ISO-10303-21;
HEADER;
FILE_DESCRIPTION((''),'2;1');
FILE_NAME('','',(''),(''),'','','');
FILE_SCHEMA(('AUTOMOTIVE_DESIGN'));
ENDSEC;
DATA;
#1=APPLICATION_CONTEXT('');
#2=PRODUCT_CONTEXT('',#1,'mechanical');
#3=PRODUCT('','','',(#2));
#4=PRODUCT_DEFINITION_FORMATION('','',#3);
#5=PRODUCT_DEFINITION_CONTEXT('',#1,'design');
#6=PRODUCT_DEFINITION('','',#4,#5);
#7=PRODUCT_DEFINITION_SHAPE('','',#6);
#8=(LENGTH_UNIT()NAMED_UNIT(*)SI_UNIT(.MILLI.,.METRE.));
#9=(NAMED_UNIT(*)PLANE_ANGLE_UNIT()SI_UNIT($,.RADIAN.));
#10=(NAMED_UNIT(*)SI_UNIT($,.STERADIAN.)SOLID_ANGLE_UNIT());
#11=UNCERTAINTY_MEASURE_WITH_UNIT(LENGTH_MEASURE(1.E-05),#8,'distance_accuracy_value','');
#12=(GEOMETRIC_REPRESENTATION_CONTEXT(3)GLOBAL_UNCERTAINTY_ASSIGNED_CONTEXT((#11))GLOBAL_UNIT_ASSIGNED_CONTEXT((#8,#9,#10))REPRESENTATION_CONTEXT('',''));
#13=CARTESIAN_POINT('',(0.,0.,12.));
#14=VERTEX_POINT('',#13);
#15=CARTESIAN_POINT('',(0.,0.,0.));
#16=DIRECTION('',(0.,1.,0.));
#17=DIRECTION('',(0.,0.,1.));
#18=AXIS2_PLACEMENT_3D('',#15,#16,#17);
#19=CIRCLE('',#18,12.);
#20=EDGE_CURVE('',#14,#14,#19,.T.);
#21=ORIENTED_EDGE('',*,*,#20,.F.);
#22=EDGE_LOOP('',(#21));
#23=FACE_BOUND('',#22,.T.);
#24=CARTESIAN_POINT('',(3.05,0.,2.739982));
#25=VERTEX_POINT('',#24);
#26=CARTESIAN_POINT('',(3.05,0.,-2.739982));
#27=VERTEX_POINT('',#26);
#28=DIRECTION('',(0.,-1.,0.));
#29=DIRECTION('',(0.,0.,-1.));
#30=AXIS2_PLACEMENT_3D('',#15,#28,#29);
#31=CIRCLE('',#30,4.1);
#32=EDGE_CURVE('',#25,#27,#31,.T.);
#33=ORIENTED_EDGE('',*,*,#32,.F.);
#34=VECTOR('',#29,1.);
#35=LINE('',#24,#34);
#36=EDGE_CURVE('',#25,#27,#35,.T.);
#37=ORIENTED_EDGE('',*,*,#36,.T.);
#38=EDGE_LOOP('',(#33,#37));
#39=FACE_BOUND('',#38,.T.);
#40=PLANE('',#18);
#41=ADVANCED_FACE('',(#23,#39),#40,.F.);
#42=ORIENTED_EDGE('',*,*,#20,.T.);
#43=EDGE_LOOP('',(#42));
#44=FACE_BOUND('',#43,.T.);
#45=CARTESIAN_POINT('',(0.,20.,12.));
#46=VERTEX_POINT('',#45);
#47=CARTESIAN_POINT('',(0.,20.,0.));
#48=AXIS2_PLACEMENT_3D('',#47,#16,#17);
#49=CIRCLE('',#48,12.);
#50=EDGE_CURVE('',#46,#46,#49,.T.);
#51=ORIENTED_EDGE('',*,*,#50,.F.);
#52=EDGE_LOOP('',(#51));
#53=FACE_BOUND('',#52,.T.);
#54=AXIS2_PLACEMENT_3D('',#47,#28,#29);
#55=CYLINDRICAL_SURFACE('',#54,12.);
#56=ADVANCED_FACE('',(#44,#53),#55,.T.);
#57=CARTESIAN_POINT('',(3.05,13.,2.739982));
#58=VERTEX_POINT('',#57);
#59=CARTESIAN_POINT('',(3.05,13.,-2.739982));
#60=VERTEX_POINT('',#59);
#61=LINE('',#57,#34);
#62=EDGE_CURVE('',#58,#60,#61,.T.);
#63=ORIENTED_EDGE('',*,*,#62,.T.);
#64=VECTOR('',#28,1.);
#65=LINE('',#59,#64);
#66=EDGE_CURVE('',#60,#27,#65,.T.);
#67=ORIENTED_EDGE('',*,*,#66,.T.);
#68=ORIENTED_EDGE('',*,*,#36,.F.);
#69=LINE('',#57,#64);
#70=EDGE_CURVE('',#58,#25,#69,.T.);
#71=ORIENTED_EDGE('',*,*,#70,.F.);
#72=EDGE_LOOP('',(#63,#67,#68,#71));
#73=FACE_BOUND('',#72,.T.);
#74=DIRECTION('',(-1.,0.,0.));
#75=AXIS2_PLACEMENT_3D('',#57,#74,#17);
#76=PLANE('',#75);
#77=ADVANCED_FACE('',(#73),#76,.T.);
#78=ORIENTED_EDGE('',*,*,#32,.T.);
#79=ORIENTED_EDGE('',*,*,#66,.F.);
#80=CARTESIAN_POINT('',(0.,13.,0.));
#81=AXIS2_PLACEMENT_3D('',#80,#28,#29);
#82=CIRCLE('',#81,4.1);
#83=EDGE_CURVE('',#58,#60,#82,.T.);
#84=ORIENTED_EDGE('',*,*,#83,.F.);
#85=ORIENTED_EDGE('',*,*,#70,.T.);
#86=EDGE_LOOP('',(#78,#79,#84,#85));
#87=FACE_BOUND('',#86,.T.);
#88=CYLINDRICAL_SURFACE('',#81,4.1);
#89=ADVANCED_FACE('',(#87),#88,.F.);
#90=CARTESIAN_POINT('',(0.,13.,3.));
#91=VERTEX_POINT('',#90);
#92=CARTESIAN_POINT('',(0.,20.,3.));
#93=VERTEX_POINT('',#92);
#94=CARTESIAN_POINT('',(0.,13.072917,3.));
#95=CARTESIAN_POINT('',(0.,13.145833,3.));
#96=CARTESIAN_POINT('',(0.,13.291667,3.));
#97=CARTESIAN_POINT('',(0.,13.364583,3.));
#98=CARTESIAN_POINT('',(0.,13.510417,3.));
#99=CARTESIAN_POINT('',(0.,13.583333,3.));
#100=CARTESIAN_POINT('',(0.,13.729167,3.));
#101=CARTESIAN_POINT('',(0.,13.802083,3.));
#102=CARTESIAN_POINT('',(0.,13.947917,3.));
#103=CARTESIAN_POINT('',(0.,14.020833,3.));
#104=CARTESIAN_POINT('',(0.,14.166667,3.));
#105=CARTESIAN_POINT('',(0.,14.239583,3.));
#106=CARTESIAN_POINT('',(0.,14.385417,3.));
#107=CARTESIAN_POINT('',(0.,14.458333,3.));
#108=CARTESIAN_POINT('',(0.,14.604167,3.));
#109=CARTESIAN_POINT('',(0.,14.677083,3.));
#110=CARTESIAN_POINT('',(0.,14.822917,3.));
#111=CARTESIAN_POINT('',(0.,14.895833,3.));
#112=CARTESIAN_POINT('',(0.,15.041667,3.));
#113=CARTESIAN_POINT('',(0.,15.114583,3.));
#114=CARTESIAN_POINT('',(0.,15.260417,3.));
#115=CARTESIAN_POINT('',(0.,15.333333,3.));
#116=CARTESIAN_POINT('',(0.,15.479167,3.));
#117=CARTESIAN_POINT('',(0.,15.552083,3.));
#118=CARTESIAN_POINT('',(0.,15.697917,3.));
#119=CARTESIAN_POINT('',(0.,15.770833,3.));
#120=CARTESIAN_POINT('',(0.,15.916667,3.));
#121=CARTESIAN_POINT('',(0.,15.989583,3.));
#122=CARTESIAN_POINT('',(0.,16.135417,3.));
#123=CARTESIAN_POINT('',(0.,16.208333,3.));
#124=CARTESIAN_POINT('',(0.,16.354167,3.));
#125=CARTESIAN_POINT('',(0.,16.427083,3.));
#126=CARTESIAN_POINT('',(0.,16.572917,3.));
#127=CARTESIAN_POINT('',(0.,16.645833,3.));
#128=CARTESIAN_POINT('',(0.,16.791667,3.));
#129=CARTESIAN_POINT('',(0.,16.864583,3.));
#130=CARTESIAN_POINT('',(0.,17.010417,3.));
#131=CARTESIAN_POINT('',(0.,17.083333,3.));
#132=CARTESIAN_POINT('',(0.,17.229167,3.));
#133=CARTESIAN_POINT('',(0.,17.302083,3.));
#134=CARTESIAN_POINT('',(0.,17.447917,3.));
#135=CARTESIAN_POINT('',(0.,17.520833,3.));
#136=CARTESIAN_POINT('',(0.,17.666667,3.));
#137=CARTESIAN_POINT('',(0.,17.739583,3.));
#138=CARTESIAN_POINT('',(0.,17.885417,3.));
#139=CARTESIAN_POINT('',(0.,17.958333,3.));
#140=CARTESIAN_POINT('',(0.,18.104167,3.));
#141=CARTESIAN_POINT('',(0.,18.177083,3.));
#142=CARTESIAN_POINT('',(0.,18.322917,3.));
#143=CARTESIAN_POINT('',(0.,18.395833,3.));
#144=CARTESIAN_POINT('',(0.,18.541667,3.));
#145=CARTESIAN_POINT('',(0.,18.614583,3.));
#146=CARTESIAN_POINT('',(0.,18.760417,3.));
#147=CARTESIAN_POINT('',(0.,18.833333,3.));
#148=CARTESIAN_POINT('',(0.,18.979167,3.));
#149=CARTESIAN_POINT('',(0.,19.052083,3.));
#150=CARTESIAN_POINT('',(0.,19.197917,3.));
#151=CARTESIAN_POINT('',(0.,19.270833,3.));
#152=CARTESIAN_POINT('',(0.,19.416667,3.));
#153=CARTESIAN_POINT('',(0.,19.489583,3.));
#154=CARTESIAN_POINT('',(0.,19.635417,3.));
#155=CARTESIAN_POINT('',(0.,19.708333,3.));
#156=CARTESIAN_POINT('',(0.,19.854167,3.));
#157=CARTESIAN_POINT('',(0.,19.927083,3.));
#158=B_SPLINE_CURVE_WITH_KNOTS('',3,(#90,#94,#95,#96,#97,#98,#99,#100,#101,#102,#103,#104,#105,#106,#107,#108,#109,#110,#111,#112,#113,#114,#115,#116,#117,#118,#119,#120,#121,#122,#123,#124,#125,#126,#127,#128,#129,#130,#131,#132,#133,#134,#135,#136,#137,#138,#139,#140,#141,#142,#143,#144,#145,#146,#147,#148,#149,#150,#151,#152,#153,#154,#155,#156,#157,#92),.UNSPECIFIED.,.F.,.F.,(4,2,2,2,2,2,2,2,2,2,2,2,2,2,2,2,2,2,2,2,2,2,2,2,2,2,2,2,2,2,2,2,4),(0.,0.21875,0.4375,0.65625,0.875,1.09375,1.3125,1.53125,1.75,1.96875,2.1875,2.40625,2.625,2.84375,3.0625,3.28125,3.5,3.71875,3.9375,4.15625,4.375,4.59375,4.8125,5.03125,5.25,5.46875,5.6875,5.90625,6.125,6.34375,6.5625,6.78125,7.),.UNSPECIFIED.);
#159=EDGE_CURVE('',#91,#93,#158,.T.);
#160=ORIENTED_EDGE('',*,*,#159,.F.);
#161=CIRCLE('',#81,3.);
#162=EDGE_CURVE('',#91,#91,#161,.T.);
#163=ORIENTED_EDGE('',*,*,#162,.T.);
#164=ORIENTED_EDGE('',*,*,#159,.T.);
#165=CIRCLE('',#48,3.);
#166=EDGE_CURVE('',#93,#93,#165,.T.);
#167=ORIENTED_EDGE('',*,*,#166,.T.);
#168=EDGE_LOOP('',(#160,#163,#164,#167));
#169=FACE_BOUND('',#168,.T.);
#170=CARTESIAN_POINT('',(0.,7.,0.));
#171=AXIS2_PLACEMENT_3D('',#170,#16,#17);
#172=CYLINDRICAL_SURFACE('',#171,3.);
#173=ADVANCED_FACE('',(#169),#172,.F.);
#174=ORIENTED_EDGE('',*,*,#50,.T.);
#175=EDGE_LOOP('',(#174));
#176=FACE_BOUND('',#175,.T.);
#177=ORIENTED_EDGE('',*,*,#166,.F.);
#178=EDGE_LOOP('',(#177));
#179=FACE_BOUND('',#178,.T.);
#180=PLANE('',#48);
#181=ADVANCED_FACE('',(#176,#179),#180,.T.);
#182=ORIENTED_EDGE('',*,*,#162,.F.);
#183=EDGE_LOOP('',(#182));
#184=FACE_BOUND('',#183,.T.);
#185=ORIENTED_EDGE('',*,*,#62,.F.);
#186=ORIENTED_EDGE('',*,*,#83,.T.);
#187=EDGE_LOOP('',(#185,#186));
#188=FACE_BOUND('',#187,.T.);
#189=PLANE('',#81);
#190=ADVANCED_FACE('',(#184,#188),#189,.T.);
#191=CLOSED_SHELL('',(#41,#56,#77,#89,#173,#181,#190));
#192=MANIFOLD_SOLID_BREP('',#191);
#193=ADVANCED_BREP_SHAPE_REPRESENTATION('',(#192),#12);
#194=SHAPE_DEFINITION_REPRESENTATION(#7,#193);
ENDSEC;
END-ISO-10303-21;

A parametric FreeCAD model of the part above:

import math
import FreeCAD as App
import Part
import Sketcher
from FreeCAD import Vector
Q = App.Units.Quantity

doc = App.newDocument("Part")
params = doc.addObject("Spreadsheet::Sheet", "Params")
for row, (alias, value) in enumerate([
    ("sketch1_diameter", "24 mm"),
    ("pad1_length", "20 mm"),
    ("sketch2_radius", "4.1 mm"),
    ("pocket1_length", "13 mm"),
    ("sketch3_diameter", "6 mm"),
    ("pocket2_length", "13 mm"),
], start=1):
    params.set(f"A{row}", alias)
    params.set(f"B{row}", "=" + value)
    params.setAlias(f"B{row}", alias)

body = doc.addObject("PartDesign::Body", "Body")

# Sketch on XZ plane
sketch1 = body.newObject("Sketcher::SketchObject", "Sketch")
sketch1.AttachmentSupport = (doc.getObject("XZ_Plane"), [""])
sketch1.MapMode = "FlatFace"
sketch1.addGeometry(Part.Circle(Vector(0, 0, 0), Vector(0, 0, 1), 12), False)
sketch1.addConstraint([
    Sketcher.Constraint("Coincident", 0, 3, -1, 1),
    Sketcher.Constraint("Diameter", 0, Q("24 mm")),
])
sketch1.setExpression("Constraints[1]", "Params.sketch1_diameter")
pad1 = body.newObject("PartDesign::Pad", "Pad")
pad1.Profile = sketch1
pad1.setExpression("Length", "Params.pad1_length")
pad1.Reversed = True

# Sketch on XZ plane
sketch2 = body.newObject("Sketcher::SketchObject", "Sketch001")
sketch2.AttachmentSupport = (doc.getObject("XZ_Plane"), [""])
sketch2.MapMode = "FlatFace"
sketch2.addGeometry([
    Part.LineSegment(Vector(3.05, -2.739982, 0), Vector(3.05, 2.739982, 0)),
    Part.ArcOfCircle(Part.Circle(Vector(0, 0, 0), Vector(0, 0, 1), 4.1), math.radians(41.935087), math.radians(318.064913)),
], False)
sketch2.addConstraint([
    Sketcher.Constraint("Coincident", 0, 1, 1, 2),
    Sketcher.Constraint("Coincident", 1, 1, 0, 2),
    Sketcher.Constraint("Vertical", 0),
    Sketcher.Constraint("Coincident", 1, 3, -1, 1),
    Sketcher.Constraint("Radius", 1, Q("4.1 mm")),
    Sketcher.Constraint("DistanceX", -1, 1, 0, 1, Q("3.05 mm")),
])
sketch2.setExpression("Constraints[4]", "Params.sketch2_radius")
pocket1 = body.newObject("PartDesign::Pocket", "Pocket")
pocket1.Profile = sketch2
pocket1.setExpression("Length", "Params.pocket1_length")

# Sketch on XZ plane
sketch3 = body.newObject("Sketcher::SketchObject", "Sketch002")
sketch3.AttachmentSupport = (doc.getObject("XZ_Plane"), [""])
sketch3.MapMode = "FlatFace"
sketch3.AttachmentOffset = App.Placement(Vector(0, 0, -20), App.Rotation())
sketch3.addGeometry(Part.Circle(Vector(0, 0, 0), Vector(0, 0, 1), 3), False)
sketch3.addConstraint([
    Sketcher.Constraint("Coincident", 0, 3, -1, 1),
    Sketcher.Constraint("Diameter", 0, Q("6 mm")),
])
sketch3.setExpression("Constraints[1]", "Params.sketch3_diameter")
pocket2 = body.newObject("PartDesign::Pocket", "Pocket001")
pocket2.Profile = sketch3
pocket2.setExpression("Length", "Params.pocket2_length")
pocket2.Reversed = True

doc.recompute()
